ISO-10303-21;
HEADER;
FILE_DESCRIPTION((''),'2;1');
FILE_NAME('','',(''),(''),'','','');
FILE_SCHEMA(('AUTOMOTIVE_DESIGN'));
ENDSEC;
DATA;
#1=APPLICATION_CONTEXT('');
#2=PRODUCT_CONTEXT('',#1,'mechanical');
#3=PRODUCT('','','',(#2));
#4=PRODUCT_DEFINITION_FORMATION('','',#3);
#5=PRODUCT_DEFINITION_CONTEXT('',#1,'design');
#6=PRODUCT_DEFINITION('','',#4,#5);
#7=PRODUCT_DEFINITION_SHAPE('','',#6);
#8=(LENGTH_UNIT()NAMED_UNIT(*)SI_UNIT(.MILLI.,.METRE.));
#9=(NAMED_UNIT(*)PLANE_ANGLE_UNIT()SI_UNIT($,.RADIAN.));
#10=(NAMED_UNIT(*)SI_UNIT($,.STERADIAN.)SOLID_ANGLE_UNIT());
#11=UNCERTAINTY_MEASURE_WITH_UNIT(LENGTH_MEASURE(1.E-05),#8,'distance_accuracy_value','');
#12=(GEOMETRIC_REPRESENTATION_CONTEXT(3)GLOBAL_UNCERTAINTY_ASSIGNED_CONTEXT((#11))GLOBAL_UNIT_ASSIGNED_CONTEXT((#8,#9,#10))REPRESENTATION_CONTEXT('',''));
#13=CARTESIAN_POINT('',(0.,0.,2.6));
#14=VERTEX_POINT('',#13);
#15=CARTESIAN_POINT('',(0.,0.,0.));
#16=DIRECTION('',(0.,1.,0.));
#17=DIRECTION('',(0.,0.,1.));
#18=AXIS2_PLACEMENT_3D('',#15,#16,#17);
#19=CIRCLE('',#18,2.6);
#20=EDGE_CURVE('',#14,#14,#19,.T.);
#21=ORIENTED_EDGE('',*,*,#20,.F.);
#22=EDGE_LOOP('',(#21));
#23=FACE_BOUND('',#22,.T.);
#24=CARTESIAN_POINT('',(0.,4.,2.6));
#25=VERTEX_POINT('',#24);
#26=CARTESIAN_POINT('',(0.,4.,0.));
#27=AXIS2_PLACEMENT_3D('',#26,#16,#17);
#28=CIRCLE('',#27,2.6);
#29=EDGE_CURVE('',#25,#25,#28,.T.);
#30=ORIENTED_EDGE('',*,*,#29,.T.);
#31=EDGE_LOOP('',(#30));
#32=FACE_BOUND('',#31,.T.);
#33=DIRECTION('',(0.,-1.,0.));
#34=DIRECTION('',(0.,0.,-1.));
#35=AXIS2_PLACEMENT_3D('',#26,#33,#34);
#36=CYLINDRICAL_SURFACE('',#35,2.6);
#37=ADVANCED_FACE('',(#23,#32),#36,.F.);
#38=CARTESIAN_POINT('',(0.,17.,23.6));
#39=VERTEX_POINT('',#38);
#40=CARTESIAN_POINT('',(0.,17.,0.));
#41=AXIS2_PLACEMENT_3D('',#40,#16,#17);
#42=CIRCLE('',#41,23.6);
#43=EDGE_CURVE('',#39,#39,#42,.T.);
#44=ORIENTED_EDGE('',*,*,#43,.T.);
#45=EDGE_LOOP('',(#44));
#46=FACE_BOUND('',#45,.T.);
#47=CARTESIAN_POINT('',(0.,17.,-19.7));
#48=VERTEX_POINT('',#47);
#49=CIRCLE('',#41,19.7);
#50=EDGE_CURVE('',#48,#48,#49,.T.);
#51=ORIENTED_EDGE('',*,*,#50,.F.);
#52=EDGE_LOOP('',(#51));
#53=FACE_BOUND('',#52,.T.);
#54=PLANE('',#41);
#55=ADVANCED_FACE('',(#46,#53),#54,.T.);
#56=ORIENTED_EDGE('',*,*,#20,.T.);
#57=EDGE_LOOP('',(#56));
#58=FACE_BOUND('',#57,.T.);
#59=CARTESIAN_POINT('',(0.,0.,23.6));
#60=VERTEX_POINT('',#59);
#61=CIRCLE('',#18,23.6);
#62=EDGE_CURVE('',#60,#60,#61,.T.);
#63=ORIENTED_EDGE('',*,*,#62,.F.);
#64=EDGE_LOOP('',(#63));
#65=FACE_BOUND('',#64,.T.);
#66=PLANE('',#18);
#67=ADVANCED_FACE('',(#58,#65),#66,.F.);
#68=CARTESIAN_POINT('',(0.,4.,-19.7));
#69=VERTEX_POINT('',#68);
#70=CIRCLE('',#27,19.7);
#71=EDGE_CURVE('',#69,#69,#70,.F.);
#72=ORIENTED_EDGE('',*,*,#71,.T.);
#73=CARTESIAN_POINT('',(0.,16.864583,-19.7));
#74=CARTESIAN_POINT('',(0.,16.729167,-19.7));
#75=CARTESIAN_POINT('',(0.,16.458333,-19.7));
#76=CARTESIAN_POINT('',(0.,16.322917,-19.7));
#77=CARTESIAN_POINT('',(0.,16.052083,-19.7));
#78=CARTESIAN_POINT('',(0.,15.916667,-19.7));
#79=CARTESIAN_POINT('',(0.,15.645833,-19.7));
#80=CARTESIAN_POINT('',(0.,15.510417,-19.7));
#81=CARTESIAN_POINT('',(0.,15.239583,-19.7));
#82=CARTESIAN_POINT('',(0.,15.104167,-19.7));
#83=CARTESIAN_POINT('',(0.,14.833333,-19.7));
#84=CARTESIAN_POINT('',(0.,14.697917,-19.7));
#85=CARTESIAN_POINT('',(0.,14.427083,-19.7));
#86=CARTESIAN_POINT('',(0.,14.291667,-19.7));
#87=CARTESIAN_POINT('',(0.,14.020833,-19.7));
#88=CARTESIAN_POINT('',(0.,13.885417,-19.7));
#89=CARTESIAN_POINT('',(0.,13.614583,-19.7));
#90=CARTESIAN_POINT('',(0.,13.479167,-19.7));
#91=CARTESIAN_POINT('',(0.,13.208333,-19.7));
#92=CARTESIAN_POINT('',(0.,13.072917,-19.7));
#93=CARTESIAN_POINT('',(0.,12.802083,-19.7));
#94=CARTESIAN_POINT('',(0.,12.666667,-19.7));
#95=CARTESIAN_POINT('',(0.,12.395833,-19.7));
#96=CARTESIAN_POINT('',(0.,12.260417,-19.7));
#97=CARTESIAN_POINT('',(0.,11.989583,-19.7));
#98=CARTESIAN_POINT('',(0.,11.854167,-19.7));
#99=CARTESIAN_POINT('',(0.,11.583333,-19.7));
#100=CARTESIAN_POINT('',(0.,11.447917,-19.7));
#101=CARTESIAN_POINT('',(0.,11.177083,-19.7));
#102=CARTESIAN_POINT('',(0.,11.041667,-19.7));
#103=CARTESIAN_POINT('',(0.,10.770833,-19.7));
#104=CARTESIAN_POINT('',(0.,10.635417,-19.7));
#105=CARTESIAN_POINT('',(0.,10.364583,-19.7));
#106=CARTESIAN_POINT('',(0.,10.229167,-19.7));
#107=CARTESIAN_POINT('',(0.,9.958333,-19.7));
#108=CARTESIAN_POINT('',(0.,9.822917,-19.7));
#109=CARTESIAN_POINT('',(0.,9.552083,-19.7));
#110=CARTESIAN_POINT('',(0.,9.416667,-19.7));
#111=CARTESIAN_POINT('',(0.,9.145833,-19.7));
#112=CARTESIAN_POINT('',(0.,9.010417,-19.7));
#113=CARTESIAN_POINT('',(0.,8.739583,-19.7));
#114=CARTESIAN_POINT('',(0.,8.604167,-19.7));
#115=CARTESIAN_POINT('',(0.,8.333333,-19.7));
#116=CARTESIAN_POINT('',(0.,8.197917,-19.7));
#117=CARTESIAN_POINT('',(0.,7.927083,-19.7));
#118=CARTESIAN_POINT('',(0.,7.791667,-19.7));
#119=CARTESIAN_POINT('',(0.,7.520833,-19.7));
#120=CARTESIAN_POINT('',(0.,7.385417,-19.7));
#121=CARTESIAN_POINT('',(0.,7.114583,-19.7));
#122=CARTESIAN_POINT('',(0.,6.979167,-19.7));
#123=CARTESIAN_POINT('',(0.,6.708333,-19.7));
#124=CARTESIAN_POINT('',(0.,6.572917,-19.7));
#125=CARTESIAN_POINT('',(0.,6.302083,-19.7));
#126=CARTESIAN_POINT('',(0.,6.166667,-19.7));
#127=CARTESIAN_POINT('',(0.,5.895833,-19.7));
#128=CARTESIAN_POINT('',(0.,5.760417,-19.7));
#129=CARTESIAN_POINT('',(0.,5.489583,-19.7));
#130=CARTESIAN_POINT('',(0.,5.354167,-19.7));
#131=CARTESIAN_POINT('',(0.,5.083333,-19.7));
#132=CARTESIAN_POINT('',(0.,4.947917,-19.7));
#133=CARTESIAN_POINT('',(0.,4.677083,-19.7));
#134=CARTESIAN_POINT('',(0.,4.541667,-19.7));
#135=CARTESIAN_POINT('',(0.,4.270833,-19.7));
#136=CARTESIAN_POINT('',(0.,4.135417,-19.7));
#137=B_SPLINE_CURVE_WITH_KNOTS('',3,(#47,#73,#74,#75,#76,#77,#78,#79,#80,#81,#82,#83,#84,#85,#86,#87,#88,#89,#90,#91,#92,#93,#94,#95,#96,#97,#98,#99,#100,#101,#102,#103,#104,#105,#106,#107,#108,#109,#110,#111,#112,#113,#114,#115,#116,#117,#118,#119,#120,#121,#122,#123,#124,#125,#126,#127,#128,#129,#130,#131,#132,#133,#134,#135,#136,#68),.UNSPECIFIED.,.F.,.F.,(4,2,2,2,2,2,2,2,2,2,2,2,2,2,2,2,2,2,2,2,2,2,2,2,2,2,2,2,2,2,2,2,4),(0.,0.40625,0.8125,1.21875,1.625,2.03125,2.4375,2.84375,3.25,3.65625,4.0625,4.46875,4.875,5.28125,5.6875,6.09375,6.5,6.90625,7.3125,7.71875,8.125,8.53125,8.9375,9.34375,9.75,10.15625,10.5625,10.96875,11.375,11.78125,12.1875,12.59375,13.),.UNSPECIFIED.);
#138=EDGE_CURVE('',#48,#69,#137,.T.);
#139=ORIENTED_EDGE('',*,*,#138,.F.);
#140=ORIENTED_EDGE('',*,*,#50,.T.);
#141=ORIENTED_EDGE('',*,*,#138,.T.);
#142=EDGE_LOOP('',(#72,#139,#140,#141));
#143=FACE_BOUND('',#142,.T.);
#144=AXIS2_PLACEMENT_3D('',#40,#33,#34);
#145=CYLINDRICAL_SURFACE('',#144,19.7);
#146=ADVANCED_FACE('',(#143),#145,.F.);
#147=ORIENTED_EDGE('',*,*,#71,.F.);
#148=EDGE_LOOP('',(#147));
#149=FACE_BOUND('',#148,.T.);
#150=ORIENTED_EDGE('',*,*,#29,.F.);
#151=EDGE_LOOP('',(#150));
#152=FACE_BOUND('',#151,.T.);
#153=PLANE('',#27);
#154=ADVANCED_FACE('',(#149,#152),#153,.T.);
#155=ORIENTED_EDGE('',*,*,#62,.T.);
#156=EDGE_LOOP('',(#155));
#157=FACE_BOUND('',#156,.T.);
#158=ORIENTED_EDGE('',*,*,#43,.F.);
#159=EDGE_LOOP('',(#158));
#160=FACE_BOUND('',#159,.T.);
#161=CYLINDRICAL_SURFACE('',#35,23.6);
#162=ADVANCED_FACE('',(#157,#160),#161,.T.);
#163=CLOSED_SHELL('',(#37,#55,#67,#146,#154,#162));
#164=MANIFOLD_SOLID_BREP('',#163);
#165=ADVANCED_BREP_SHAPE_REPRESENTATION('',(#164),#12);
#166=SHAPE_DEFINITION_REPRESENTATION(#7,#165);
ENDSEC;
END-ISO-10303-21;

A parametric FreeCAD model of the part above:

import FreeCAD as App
import Part
import Sketcher
from FreeCAD import Vector

doc = App.newDocument("Part")
body = doc.addObject("PartDesign::Body", "Body")

sketch1 = body.newObject("Sketcher::SketchObject", "Sketch")
sketch1.AttachmentSupport = (doc.getObject("XZ_Plane"), [""])
sketch1.MapMode = "FlatFace"
sketch1.addGeometry([
    Part.Circle(Vector(0, 0, 0), Vector(0, 0, 1), 23.6),
    Part.Circle(Vector(0, 0, 0), Vector(0, 0, 1), 2.6),
], False)
sketch1.addConstraint([
    Sketcher.Constraint("Coincident", 0, 3, -1, 1),
    Sketcher.Constraint("Coincident", 1, 3, -1, 1),
    Sketcher.Constraint("Diameter", 0, 47.2),
    Sketcher.Constraint("Diameter", 1, 5.2),
])
pad1 = body.newObject("PartDesign::Pad", "Pad")
pad1.Profile = sketch1
pad1.Length = 4
pad1.Reversed = True

sketch2 = body.newObject("Sketcher::SketchObject", "Sketch001")
sketch2.AttachmentSupport = (doc.getObject("XZ_Plane"), [""])
sketch2.MapMode = "FlatFace"
sketch2.AttachmentOffset = App.Placement(Vector(0, 0, -4), App.Rotation())
sketch2.addGeometry([
    Part.Circle(Vector(0, 0, 0), Vector(0, 0, 1), 24),
    Part.Circle(Vector(0, 0, 0), Vector(0, 0, 1), 20),
], False)
sketch2.addConstraint([
    Sketcher.Constraint("Coincident", 0, 3, -1, 1),
    Sketcher.Constraint("Coincident", 1, 3, -1, 1),
    Sketcher.Constraint("Diameter", 0, 47.2),
    Sketcher.Constraint("Diameter", 1, 39.4),
])
pad2 = body.newObject("PartDesign::Pad", "Pad001")
pad2.Profile = sketch2
pad2.Length = 13
pad2.Reversed = True

doc.recompute()
